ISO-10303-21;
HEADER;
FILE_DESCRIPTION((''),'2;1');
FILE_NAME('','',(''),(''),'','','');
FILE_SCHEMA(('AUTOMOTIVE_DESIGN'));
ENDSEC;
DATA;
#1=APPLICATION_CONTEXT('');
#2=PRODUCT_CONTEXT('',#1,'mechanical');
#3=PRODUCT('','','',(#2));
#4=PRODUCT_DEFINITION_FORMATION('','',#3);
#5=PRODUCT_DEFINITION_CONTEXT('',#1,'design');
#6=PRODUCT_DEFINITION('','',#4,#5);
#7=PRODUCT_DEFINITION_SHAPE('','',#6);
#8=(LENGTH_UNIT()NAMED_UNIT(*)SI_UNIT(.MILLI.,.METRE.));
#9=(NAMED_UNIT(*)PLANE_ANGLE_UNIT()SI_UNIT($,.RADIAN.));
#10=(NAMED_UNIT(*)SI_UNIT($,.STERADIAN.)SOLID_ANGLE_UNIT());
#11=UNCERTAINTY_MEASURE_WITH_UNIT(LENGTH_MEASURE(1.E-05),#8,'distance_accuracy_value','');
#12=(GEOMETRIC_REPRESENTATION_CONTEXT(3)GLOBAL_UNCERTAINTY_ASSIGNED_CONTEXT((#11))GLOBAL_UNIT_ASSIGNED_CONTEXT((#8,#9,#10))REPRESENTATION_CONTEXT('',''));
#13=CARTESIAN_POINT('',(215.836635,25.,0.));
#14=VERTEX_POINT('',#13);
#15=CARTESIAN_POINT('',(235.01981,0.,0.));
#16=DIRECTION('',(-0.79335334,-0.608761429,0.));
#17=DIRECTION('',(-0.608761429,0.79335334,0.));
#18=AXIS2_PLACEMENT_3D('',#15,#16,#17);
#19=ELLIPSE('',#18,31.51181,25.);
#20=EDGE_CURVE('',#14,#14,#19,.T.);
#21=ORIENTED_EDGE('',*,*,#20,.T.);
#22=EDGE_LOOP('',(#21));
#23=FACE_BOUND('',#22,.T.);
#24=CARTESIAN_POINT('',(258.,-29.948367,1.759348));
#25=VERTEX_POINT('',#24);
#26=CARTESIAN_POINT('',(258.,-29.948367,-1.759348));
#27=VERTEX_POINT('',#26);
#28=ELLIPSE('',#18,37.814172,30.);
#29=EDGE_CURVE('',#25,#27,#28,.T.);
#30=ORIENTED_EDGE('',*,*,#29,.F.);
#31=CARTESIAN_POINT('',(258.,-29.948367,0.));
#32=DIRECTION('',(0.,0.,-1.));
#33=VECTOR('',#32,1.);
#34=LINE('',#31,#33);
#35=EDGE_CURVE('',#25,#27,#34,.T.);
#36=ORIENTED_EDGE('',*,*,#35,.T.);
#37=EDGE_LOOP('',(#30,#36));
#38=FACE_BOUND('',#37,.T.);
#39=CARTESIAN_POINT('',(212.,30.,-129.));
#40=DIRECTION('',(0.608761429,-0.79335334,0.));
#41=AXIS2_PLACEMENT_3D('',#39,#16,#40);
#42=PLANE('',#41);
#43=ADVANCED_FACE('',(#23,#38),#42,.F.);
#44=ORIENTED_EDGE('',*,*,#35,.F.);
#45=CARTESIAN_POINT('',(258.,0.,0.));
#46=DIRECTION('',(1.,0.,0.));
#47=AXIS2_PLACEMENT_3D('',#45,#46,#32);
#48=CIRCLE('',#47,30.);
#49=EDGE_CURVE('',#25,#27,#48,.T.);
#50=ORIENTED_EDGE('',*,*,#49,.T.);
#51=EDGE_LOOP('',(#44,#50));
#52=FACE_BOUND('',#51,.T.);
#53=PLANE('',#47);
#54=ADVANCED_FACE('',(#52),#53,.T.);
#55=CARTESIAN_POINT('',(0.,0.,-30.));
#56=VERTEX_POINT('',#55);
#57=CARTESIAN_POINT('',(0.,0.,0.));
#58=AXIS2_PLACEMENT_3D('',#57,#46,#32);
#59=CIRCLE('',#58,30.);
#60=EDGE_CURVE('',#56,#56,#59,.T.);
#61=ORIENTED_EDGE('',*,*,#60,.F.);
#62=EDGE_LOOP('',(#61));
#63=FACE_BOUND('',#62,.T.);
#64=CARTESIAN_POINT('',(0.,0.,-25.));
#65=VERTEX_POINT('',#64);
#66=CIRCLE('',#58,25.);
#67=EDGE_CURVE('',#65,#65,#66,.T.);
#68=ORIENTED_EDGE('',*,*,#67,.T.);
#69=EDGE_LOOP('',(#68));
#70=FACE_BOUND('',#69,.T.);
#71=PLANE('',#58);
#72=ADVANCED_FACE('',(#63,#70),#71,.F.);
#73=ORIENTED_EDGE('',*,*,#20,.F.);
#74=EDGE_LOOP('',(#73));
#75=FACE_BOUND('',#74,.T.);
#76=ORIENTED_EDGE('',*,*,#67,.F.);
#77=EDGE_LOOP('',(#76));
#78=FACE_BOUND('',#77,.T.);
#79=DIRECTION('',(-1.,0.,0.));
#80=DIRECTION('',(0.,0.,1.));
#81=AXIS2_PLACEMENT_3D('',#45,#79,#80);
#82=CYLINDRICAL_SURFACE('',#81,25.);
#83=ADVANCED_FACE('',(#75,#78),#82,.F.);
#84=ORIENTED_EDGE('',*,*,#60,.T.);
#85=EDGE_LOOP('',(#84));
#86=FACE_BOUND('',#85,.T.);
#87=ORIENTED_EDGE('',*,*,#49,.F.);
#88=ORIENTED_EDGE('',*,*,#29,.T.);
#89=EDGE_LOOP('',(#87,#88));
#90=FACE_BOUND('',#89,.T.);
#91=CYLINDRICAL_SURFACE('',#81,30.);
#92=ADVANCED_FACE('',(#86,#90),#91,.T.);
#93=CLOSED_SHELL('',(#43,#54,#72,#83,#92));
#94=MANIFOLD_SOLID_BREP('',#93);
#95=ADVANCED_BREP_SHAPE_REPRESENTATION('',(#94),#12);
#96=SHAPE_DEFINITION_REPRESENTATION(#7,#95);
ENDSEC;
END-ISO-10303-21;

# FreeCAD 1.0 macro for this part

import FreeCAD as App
import Part
import Sketcher
Q = App.Units.Quantity


def add_polygon(sketch, points):
    """Adds a closed chain of lines whose ends are joined by coincident constraints."""
    first, n = sketch.GeometryCount, len(points)
    for a, b in zip(points, points[1:] + points[:1]):
        sketch.addGeometry(Part.LineSegment(App.Vector(*a, 0), App.Vector(*b, 0)), False)
    for i in range(n):
        sketch.addConstraint(Sketcher.Constraint("Coincident", first + i, 2, first + (i + 1) % n, 1))

doc = App.newDocument("Part")
params = doc.addObject("Spreadsheet::Sheet", "Params")
for row, (alias, value) in enumerate([
    ("sketch1_diameter", "60 mm"),
    ("sketch1_diameter2", "50 mm"),
    ("pad1_length", "258 mm"),
    ("pocket1_length", "258 mm"),
], start=1):
    params.set(f"A{row}", alias)
    params.set(f"B{row}", "=" + value)
    params.setAlias(f"B{row}", alias)

body = doc.addObject("PartDesign::Body", "Body")

sketch1 = doc.addObject("Sketcher::SketchObject", "Sketch")
body.addObject(sketch1)
sketch1.AttachmentSupport = (doc.YZ_Plane, [""])
sketch1.MapMode = "FlatFace"
sketch1.addGeometry([
    Part.Circle(App.Vector(0, 0, 0), App.Vector(0, 0, 1), 30),
    Part.Circle(App.Vector(0, 0, 0), App.Vector(0, 0, 1), 25),
], False)
sketch1.addConstraint([
    Sketcher.Constraint("Coincident", 0, 3, -1, 1),
    Sketcher.Constraint("Coincident", 1, 3, -1, 1),
    Sketcher.Constraint("Diameter", 0, Q("60 mm")),
    Sketcher.Constraint("Diameter", 1, Q("50 mm")),
])
sketch1.setExpression("Constraints[2]", "Params.sketch1_diameter")
sketch1.setExpression("Constraints[3]", "Params.sketch1_diameter2")
pad1 = doc.addObject("PartDesign::Pad", "Pad")
body.addObject(pad1)
pad1.Profile = sketch1
pad1.setExpression("Length", "Params.pad1_length")

sketch2 = doc.addObject("Sketcher::SketchObject", "Sketch001")
body.addObject(sketch2)
sketch2.AttachmentSupport = (doc.XY_Plane, [""])
sketch2.MapMode = "FlatFace"
add_polygon(sketch2, [(212, 30), (266.843612, -41.473586), (269.863887, 30)])
sketch2.addConstraint([
    Sketcher.Constraint("Horizontal", 2),
    Sketcher.Constraint("DistanceY", -1, 1, 1, 2, Q("30 mm")),
    Sketcher.Constraint("DistanceX", -1, 1, 2, 2, Q("212 mm")),
    Sketcher.Constraint("Angle", 0, Q("-52.5 deg")),
    Sketcher.Constraint("DistanceX", 2, 2, 2, 1, Q("57.863887 mm")),
    Sketcher.Constraint("DistanceX", -1, 1, 0, 2, Q("266.843612 mm")),
])
pocket1 = doc.addObject("PartDesign::Pocket", "Pocket")
body.addObject(pocket1)
pocket1.Profile = sketch2
pocket1.setExpression("Length", "Params.pocket1_length")
pocket1.Midplane = True

doc.recompute()
